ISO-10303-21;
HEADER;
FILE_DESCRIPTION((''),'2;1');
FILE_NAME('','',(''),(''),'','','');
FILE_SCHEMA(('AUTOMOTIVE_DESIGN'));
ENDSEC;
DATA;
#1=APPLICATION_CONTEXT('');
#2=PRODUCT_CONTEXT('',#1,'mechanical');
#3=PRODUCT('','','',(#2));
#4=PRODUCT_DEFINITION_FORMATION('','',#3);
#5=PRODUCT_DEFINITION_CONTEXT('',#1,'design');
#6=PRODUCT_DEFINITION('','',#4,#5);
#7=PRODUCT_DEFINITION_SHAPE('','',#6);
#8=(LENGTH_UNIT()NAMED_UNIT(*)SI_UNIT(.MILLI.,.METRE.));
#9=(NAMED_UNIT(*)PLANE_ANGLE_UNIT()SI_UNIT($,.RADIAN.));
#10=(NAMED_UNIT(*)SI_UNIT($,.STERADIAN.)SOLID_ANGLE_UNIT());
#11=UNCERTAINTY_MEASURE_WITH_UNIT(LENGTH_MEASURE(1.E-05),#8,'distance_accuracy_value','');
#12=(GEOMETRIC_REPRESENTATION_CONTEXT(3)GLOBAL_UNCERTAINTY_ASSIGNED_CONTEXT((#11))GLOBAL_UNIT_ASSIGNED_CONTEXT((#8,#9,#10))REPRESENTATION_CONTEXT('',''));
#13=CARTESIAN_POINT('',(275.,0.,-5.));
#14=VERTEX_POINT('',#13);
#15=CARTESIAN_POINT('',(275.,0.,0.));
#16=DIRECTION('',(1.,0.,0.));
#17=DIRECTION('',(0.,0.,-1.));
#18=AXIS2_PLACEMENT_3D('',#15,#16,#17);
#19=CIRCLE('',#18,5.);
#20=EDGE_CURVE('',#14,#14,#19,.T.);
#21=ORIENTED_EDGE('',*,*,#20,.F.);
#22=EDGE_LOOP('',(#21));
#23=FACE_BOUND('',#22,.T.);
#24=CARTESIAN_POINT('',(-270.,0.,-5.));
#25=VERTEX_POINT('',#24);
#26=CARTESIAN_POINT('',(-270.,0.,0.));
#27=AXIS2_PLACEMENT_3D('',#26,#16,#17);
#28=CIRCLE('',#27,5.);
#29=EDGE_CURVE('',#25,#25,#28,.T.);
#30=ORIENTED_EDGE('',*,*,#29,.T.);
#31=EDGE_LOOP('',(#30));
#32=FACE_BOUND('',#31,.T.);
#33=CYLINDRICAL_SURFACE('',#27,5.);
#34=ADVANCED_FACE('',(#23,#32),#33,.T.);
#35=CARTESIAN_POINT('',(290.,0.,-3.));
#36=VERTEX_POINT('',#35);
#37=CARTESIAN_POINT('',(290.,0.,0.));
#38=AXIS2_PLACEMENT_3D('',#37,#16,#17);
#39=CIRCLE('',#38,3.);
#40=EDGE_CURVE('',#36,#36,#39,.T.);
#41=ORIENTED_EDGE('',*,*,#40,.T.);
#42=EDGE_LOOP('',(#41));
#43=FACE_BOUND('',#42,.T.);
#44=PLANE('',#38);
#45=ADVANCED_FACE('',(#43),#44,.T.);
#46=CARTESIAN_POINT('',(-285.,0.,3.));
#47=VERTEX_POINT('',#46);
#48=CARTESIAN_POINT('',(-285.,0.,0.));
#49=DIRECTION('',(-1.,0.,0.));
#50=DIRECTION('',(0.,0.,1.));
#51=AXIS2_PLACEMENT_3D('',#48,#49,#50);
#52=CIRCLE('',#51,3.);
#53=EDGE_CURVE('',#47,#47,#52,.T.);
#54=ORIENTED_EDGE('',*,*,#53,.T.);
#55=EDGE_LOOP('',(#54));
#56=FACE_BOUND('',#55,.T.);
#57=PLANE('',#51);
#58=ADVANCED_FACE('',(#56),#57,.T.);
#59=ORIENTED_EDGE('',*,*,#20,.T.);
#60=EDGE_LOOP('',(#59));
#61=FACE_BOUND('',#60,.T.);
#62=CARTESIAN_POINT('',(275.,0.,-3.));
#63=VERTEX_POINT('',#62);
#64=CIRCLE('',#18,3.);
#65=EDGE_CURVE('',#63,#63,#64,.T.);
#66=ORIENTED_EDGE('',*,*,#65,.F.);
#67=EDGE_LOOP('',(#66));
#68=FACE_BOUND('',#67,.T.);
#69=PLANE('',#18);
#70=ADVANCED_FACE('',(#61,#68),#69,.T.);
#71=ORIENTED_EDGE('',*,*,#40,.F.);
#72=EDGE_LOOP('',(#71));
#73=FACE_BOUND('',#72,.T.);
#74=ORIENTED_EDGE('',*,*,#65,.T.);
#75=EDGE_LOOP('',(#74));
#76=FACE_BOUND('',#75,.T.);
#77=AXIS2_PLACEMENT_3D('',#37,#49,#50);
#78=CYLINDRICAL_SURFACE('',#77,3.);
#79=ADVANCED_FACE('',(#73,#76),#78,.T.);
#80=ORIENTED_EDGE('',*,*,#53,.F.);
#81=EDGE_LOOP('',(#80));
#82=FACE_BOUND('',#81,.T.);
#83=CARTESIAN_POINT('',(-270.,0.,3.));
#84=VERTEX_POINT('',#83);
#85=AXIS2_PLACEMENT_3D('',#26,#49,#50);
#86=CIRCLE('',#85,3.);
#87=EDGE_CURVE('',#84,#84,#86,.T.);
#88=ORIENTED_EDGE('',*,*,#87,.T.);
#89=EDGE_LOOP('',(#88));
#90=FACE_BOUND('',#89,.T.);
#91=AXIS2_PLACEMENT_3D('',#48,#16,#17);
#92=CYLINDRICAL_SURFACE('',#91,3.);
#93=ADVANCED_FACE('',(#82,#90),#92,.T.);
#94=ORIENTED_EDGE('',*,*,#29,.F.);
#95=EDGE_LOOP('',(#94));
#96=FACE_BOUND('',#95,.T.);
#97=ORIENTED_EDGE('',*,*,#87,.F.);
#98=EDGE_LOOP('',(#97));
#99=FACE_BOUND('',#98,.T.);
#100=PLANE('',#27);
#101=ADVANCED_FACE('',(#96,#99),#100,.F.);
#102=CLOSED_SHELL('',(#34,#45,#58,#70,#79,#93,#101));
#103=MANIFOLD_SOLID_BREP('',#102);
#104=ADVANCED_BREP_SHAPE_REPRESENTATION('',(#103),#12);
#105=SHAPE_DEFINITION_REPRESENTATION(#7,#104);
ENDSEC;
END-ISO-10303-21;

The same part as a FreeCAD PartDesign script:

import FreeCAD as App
import Part
import Sketcher
from FreeCAD import Vector
Q = App.Units.Quantity

doc = App.newDocument("Part")
body = doc.addObject("PartDesign::Body", "Body")

# Sketch on YZ plane
sketch1 = doc.addObject("Sketcher::SketchObject", "Sketch")
body.addObject(sketch1)
sketch1.AttachmentSupport = (doc.YZ_Plane, [""])
sketch1.MapMode = "FlatFace"
sketch1.addGeometry(Part.Circle(Vector(0, 0, 0), Vector(0, 0, 1), 5), False)
sketch1.addConstraint(Sketcher.Constraint("Coincident", 0, 3, -1, 1))
sketch1.addConstraint(Sketcher.Constraint("Diameter", 0, Q("10 mm")))
pad1 = doc.addObject("PartDesign::Pad", "Pad")
body.addObject(pad1)
pad1.Profile = sketch1
pad1.Type = "TwoLengths"
pad1.Length = 275
pad1.Length2 = 270

# Sketch on YZ plane
sketch2 = doc.addObject("Sketcher::SketchObject", "Sketch001")
body.addObject(sketch2)
sketch2.AttachmentSupport = (doc.YZ_Plane, [""])
sketch2.MapMode = "FlatFace"
sketch2.AttachmentOffset = App.Placement(Vector(0, 0, -270), App.Rotation())
sketch2.addGeometry(Part.Circle(Vector(0, 0, 0), Vector(0, 0, 1), 3), False)
sketch2.addConstraint(Sketcher.Constraint("Coincident", 0, 3, -1, 1))
sketch2.addConstraint(Sketcher.Constraint("Diameter", 0, Q("6 mm")))
pad2 = doc.addObject("PartDesign::Pad", "Pad001")
body.addObject(pad2)
pad2.Profile = sketch2
pad2.Length = 15
pad2.Reversed = True

# Sketch on YZ plane
sketch3 = doc.addObject("Sketcher::SketchObject", "Sketch002")
body.addObject(sketch3)
sketch3.AttachmentSupport = (doc.YZ_Plane, [""])
sketch3.MapMode = "FlatFace"
sketch3.AttachmentOffset = App.Placement(Vector(0, 0, 290), App.Rotation())
sketch3.addGeometry(Part.Circle(Vector(0, 0, 0), Vector(0, 0, 1), 3), False)
sketch3.addConstraint(Sketcher.Constraint("Coincident", 0, 3, -1, 1))
sketch3.addConstraint(Sketcher.Constraint("Diameter", 0, Q("6 mm")))
pad3 = doc.addObject("PartDesign::Pad", "Pad002")
body.addObject(pad3)
pad3.Profile = sketch3
pad3.Length = 15
pad3.Reversed = True

doc.recompute()
